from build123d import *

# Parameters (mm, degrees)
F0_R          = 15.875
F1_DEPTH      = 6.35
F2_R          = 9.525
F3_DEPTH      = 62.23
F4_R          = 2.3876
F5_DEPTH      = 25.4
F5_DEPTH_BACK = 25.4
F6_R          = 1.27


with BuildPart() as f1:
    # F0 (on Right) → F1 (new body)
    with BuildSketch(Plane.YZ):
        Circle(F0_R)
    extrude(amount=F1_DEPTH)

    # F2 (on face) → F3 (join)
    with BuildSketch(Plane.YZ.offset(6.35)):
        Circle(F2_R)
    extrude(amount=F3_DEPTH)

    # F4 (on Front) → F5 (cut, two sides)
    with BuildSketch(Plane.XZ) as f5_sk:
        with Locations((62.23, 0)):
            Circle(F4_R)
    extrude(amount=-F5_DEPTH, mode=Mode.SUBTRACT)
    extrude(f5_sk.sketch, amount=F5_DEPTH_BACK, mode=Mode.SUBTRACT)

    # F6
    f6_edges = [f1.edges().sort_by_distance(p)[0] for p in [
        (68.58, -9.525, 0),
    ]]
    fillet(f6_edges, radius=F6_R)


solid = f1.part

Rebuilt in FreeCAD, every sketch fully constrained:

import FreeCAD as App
import Part
import Sketcher
Q = App.Units.Quantity


def edges_at(feature, points):
    """Names of the edges that pass closest to the given points."""
    edges = feature.Shape.Edges
    near = lambda p: min(range(len(edges)), key=lambda i: edges[i].distToShape(Part.Vertex(*p))[0])
    return sorted({f"Edge{near(p) + 1}" for p in points})

doc = App.newDocument("Part")
body = doc.addObject("PartDesign::Body", "Body")

# Sketch on YZ plane
sketch1 = body.newObject("Sketcher::SketchObject", "Sketch")
sketch1.AttachmentSupport = (doc.getObject("YZ_Plane"), [""])
sketch1.MapMode = "FlatFace"
sketch1.addGeometry(Part.Circle(App.Vector(0, 0, 0), App.Vector(0, 0, 1), 15.875), False)
sketch1.addConstraint([
    Sketcher.Constraint("Coincident", 0, 3, -1, 1),
    Sketcher.Constraint("Diameter", 0, Q("1.25 in")),
])
pad1 = body.newObject("PartDesign::Pad", "Pad")
pad1.Profile = sketch1
pad1.Length = Q("0.25 in")

# Sketch on YZ plane
sketch2 = body.newObject("Sketcher::SketchObject", "Sketch001")
sketch2.AttachmentSupport = (doc.getObject("YZ_Plane"), [""])
sketch2.MapMode = "FlatFace"
sketch2.AttachmentOffset = App.Placement(App.Vector(0, 0, 0.25 * 25.4), App.Rotation())
sketch2.addGeometry(Part.Circle(App.Vector(0, 0, 0), App.Vector(0, 0, 1), 9.525), False)
sketch2.addConstraint([
    Sketcher.Constraint("Coincident", 0, 3, -1, 1),
    Sketcher.Constraint("Diameter", 0, Q("0.75 in")),
])
pad2 = body.newObject("PartDesign::Pad", "Pad001")
pad2.Profile = sketch2
pad2.Length = Q("2.45 in")

# Sketch on XZ plane
sketch3 = body.newObject("Sketcher::SketchObject", "Sketch002")
sketch3.AttachmentSupport = (doc.getObject("XZ_Plane"), [""])
sketch3.MapMode = "FlatFace"
sketch3.addGeometry(Part.Circle(App.Vector(62.23, 0, 0), App.Vector(0, 0, 1), 2.3876), False)
sketch3.addConstraint([
    Sketcher.Constraint("PointOnObject", 0, 3, -1),
    Sketcher.Constraint("Diameter", 0, Q("0.188 in")),
    Sketcher.Constraint("DistanceX", -1, 1, 0, 3, Q("2.45 in")),
])
pocket1 = body.newObject("PartDesign::Pocket", "Pocket")
pocket1.Profile = sketch3
pocket1.Type = "ThroughAll"
pocket1.Midplane = True
doc.recompute()

fillet = body.newObject("PartDesign::Fillet", "Fillet")
fillet.Base = (pocket1, edges_at(pocket1, [(68.58, -9.525, 0)]))
fillet.Radius = Q("0.05 in")

doc.recompute()
